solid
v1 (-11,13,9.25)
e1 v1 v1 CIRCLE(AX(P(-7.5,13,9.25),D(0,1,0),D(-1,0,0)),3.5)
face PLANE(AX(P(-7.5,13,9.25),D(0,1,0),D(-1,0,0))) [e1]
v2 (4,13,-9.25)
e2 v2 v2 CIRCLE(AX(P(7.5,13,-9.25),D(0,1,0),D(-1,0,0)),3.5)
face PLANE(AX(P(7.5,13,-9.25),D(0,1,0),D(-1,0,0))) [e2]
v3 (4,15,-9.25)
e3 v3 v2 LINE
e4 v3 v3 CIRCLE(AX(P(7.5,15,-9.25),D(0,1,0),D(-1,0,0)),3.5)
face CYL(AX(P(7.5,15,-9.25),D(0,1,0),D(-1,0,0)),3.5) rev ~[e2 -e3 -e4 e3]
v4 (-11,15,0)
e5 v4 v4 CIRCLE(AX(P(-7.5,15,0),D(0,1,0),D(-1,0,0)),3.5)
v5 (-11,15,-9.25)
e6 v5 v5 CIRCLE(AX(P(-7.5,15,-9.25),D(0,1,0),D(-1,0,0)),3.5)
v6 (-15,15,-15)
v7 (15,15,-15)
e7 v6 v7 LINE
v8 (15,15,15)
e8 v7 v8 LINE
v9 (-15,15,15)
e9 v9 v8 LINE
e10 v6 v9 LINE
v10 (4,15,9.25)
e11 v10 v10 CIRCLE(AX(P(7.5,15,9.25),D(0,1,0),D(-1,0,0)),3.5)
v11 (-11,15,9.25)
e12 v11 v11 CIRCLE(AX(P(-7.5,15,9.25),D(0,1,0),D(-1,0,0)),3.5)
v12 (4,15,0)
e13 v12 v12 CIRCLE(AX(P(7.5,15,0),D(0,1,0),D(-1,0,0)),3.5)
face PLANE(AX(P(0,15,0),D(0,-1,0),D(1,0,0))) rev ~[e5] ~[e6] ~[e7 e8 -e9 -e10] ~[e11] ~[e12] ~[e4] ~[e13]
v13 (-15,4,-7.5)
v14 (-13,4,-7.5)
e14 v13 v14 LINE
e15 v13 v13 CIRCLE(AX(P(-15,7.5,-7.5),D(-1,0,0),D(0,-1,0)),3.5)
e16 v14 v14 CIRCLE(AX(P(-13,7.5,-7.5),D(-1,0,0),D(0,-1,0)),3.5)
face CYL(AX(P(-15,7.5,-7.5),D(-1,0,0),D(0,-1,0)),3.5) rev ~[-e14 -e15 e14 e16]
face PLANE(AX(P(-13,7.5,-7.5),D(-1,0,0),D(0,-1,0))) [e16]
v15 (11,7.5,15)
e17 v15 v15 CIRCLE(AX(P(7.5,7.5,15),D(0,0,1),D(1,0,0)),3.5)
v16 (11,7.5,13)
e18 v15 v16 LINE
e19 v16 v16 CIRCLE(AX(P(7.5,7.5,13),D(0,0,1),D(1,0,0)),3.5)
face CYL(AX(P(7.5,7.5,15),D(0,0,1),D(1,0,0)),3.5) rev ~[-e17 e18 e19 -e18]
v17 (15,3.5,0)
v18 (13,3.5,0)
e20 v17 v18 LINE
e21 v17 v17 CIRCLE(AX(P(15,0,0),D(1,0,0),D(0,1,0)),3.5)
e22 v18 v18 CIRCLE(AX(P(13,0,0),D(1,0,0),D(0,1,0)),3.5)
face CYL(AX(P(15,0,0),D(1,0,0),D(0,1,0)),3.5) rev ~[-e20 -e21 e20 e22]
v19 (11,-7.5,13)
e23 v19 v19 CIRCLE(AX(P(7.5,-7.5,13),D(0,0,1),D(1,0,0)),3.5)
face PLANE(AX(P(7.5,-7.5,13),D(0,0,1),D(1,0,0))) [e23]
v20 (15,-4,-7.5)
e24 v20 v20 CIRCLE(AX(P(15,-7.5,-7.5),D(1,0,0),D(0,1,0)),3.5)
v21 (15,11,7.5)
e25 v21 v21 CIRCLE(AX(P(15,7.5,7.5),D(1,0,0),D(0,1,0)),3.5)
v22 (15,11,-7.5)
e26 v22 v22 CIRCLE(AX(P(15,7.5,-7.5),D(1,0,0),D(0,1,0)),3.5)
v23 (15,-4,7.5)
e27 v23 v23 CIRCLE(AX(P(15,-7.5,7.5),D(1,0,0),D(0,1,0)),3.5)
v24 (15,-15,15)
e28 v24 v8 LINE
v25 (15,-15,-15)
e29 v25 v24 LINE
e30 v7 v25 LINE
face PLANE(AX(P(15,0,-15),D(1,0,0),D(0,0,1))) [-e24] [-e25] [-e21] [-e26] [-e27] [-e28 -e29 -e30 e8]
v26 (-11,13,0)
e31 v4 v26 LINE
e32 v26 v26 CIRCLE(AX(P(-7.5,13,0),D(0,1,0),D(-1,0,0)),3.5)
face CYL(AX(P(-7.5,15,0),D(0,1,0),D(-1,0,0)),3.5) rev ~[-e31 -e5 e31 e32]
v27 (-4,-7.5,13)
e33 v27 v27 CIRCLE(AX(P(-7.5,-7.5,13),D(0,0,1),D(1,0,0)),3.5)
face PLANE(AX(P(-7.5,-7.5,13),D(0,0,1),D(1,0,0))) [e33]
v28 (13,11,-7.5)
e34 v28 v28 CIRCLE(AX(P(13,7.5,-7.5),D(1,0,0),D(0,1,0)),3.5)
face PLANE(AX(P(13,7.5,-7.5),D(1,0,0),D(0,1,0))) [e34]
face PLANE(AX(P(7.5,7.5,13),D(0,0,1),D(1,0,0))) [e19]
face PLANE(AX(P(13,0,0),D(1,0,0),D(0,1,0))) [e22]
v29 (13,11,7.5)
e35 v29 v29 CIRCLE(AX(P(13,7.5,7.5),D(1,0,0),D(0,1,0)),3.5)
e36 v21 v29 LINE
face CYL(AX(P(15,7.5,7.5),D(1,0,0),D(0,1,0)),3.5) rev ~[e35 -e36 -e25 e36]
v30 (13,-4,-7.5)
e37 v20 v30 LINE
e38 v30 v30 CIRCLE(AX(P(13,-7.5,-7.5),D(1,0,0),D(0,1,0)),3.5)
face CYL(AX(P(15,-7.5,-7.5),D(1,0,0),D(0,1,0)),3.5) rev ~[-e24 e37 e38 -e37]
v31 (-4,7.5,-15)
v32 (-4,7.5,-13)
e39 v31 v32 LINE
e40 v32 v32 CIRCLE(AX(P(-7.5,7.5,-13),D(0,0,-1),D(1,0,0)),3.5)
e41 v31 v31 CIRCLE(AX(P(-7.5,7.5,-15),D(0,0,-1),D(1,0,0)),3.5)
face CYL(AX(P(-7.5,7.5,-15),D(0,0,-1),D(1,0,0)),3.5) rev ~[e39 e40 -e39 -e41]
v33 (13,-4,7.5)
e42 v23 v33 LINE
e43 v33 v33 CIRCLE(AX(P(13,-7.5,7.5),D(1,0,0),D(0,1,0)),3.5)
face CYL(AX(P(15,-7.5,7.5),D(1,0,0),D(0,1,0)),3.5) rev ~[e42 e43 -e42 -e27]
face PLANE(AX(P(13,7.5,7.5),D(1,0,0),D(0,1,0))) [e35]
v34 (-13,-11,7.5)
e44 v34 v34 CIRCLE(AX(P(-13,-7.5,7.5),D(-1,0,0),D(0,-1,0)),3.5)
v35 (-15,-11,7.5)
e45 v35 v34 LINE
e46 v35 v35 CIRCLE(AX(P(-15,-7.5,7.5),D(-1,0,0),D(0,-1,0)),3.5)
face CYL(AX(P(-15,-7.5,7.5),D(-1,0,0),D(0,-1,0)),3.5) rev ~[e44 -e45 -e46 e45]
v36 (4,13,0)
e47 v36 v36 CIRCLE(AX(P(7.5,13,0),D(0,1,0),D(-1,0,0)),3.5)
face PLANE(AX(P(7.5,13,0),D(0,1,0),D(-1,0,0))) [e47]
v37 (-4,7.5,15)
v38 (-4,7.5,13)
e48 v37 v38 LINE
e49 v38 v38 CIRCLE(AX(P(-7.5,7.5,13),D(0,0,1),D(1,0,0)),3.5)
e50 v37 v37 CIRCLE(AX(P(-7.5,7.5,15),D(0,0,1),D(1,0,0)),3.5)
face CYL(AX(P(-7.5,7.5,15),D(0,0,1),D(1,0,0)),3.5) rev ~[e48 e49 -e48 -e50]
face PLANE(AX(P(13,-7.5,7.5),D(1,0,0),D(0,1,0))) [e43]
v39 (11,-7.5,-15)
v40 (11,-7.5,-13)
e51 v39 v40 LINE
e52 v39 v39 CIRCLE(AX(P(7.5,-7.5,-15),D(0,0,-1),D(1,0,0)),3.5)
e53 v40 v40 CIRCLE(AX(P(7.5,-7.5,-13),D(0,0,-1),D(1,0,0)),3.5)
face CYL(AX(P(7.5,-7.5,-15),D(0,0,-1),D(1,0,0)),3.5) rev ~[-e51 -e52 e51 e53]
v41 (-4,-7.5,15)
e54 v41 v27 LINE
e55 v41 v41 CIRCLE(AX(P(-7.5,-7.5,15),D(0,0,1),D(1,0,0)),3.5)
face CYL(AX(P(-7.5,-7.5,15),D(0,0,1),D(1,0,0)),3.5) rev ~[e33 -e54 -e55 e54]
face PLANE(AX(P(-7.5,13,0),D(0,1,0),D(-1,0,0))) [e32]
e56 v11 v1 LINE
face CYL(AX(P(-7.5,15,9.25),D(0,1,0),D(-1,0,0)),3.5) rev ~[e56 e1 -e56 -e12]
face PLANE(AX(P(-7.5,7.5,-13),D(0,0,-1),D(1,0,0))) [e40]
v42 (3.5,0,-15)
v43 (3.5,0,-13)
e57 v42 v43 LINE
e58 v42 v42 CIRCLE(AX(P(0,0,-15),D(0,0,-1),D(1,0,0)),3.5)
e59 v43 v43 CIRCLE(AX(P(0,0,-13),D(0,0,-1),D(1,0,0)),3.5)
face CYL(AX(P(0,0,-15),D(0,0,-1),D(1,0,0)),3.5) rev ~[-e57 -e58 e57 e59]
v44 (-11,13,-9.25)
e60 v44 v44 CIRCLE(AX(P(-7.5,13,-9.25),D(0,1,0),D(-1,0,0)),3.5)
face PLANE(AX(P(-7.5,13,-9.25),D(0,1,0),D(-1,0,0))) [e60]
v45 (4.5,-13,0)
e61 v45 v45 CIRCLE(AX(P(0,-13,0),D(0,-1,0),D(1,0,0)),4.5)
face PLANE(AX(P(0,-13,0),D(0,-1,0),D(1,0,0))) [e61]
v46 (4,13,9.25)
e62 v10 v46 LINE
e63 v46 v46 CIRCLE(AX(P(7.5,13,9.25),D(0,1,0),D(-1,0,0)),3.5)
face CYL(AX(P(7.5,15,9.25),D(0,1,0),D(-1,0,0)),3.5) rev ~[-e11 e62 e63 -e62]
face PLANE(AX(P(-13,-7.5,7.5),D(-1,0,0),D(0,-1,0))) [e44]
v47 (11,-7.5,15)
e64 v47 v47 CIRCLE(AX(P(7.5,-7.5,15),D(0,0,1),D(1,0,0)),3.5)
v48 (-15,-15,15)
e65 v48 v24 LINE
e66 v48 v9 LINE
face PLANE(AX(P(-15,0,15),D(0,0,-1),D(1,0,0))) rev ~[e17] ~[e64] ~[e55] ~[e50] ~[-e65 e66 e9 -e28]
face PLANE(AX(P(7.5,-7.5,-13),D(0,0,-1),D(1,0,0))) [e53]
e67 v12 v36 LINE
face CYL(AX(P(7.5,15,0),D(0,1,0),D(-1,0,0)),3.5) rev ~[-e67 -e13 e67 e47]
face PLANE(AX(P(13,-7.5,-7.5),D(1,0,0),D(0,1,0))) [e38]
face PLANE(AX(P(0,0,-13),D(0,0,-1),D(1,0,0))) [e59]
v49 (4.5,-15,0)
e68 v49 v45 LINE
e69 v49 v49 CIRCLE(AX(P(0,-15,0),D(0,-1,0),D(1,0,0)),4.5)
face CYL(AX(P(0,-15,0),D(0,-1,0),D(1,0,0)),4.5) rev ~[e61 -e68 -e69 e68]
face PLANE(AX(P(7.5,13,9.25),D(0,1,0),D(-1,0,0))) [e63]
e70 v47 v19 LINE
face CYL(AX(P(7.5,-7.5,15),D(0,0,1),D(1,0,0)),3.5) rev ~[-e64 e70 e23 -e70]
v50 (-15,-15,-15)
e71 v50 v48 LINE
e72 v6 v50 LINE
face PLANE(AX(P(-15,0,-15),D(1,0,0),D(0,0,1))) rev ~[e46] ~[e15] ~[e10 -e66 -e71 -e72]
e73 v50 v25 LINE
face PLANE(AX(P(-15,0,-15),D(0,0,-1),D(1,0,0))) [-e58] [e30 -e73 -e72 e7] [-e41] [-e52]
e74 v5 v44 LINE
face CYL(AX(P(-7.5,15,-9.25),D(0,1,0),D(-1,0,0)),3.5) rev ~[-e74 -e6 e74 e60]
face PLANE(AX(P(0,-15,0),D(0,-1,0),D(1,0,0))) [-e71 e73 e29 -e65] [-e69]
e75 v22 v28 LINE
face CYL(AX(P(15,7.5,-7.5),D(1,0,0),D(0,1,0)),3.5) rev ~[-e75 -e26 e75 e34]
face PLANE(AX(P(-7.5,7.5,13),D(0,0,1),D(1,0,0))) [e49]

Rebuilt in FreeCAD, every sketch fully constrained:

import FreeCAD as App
import Part
import Sketcher

V = App.Vector


def add_polygon(sketch, points):
    """Adds a closed chain of lines whose ends are joined by coincident constraints."""
    first, n = sketch.GeometryCount, len(points)
    for a, b in zip(points, points[1:] + points[:1]):
        sketch.addGeometry(Part.LineSegment(App.Vector(*a, 0), App.Vector(*b, 0)), False)
    for i in range(n):
        sketch.addConstraint(Sketcher.Constraint("Coincident", first + i, 2, first + (i + 1) % n, 1))

doc = App.newDocument("Part")
params = doc.addObject("Spreadsheet::Sheet", "Params")
for row, (alias, value) in enumerate([
    ("sketch1_width", "30 mm"),
    ("pad1_length", "30 mm"),
    ("sketch2_diameter", "9 mm"),
    ("pocket1_length", "2 mm"),
    ("sketch3_diameter", "7 mm"),
    ("pocket2_length", "2 mm"),
    ("sketch4_diameter", "7 mm"),
    ("pocket3_length", "2 mm"),
    ("sketch5_diameter", "7 mm"),
    ("pocket4_length", "2 mm"),
    ("sketch6_diameter", "7 mm"),
    ("pocket5_length", "2 mm"),
    ("sketch7_diameter", "7 mm"),
    ("pocket6_length", "2 mm"),
], start=1):
    params.set(f"A{row}", alias)
    params.set(f"B{row}", "=" + value)
    params.setAlias(f"B{row}", alias)

body = doc.addObject("PartDesign::Body", "Body")

# Sketch on XZ plane
sketch1 = doc.addObject("Sketcher::SketchObject", "Sketch")
body.addObject(sketch1)
sketch1.AttachmentSupport = (doc.XZ_Plane, [""])
sketch1.MapMode = "FlatFace"
add_polygon(sketch1, [(-15, 15), (-15, -15), (15, -15), (15, 15)])  # lines 0-3
sketch1.addConstraint([
    Sketcher.Constraint("Vertical", 0),
    Sketcher.Constraint("Horizontal", 1),
    Sketcher.Constraint("Vertical", 2),
    Sketcher.Constraint("Horizontal", 3),
    Sketcher.Constraint("Symmetric", 0, 2, 2, 2, -1, 1),
    Sketcher.Constraint("Equal", 3, 0),
    Sketcher.Constraint("DistanceX", 1, 1, 1, 2, 30.0),
])
sketch1.setExpression("Constraints[10]", "Params.sketch1_width")
pad1 = doc.addObject("PartDesign::Pad", "Pad")
body.addObject(pad1)
pad1.Profile = sketch1
pad1.setExpression("Length", "Params.pad1_length")
pad1.Midplane = True

# Sketch on XZ plane
sketch2 = doc.addObject("Sketcher::SketchObject", "Sketch001")
body.addObject(sketch2)
sketch2.AttachmentSupport = (doc.XZ_Plane, [""])
sketch2.MapMode = "FlatFace"
sketch2.AttachmentOffset = App.Placement(V(0, 0, 15), App.Rotation())
sketch2.addGeometry(Part.Circle(V(0, 0, 0), V(0, 0, 1), 4.5), False)
sketch2.addConstraint([
    Sketcher.Constraint("Coincident", 0, 3, -1, 1),
    Sketcher.Constraint("Diameter", 0, 9.0),
])
sketch2.setExpression("Constraints[1]", "Params.sketch2_diameter")
pocket1 = doc.addObject("PartDesign::Pocket", "Pocket")
body.addObject(pocket1)
pocket1.Profile = sketch2
pocket1.setExpression("Length", "Params.pocket1_length")

# Sketch on XZ plane
sketch3 = doc.addObject("Sketcher::SketchObject", "Sketch002")
body.addObject(sketch3)
sketch3.AttachmentSupport = (doc.XZ_Plane, [""])
sketch3.MapMode = "FlatFace"
sketch3.AttachmentOffset = App.Placement(V(0, 0, -15), App.Rotation())
sketch3.addGeometry([
    Part.Circle(V(7.5, 0, 0), V(0, 0, 1), 3.5),  # 0
    Part.Circle(V(7.5, 9.2, 0), V(0, 0, 1), 3.5),  # 1
    Part.Circle(V(7.5, -9.2, 0), V(0, 0, 1), 3.5),  # 2
    Part.Circle(V(-7.5, 0, 0), V(0, 0, 1), 3.5),  # 3
    Part.Circle(V(-7.5, -9.2, 0), V(0, 0, 1), 3.5),  # 4
    Part.Circle(V(-7.5, 9.2, 0), V(0, 0, 1), 3.5),  # 5
], False)
sketch3.addConstraint([
    Sketcher.Constraint("Equal", 0, 1),
    Sketcher.Constraint("Equal", 1, 2),
    Sketcher.Constraint("Equal", 2, 3),
    Sketcher.Constraint("Equal", 3, 4),
    Sketcher.Constraint("Equal", 4, 5),
    Sketcher.Constraint("Symmetric", 0, 3, 3, 3, -1, 1),
    Sketcher.Constraint("Symmetric", 1, 3, 4, 3, -1, 1),
    Sketcher.Constraint("Symmetric", 2, 3, 5, 3, -1, 1),
    Sketcher.Constraint("Symmetric", 2, 3, 4, 3, -2),
    Sketcher.Constraint("PointOnObject", 0, 3, -1),
    Sketcher.Constraint("Vertical", 0, 3, 1, 3),
    Sketcher.Constraint("Diameter", 0, 7.0),
    Sketcher.Constraint("DistanceX", 3, 3, 0, 3, 15.0),
    Sketcher.Constraint("DistanceY", 2, 3, 1, 3, 18.5),
])
sketch3.setExpression("Constraints[11]", "Params.sketch3_diameter")
pocket2 = doc.addObject("PartDesign::Pocket", "Pocket001")
body.addObject(pocket2)
pocket2.Profile = sketch3
pocket2.setExpression("Length", "Params.pocket2_length")
pocket2.Reversed = True

# Sketch on XY plane
sketch4 = doc.addObject("Sketcher::SketchObject", "Sketch003")
body.addObject(sketch4)
sketch4.AttachmentSupport = (doc.XY_Plane, [""])
sketch4.MapMode = "FlatFace"
sketch4.AttachmentOffset = App.Placement(V(0, 0, 15), App.Rotation())
sketch4.addGeometry([
    Part.Circle(V(-7.5, 7.5, 0), V(0, 0, 1), 3.5),
    Part.Circle(V(7.5, 7.5, 0), V(0, 0, 1), 3.5),
    Part.Circle(V(7.5, -7.5, 0), V(0, 0, 1), 3.5),
    Part.Circle(V(-7.5, -7.5, 0), V(0, 0, 1), 3.5),
], False)
sketch4.addConstraint([
    Sketcher.Constraint("Equal", 0, 1),
    Sketcher.Constraint("Equal", 1, 2),
    Sketcher.Constraint("Equal", 2, 3),
    Sketcher.Constraint("Symmetric", 0, 3, 2, 3, -1, 1),
    Sketcher.Constraint("Symmetric", 1, 3, 3, 3, -1, 1),
    Sketcher.Constraint("Symmetric", 0, 3, 1, 3, -2),
    Sketcher.Constraint("Diameter", 0, 7.0),
    Sketcher.Constraint("DistanceX", 0, 3, 1, 3, 15.0),
    Sketcher.Constraint("DistanceY", 2, 3, 1, 3, 15.0),
])
sketch4.setExpression("Constraints[6]", "Params.sketch4_diameter")
pocket3 = doc.addObject("PartDesign::Pocket", "Pocket002")
body.addObject(pocket3)
pocket3.Profile = sketch4
pocket3.setExpression("Length", "Params.pocket3_length")

# Sketch on XY plane
sketch5 = doc.addObject("Sketcher::SketchObject", "Sketch004")
body.addObject(sketch5)
sketch5.AttachmentSupport = (doc.XY_Plane, [""])
sketch5.MapMode = "FlatFace"
sketch5.AttachmentOffset = App.Placement(V(0, 0, -15), App.Rotation())
sketch5.addGeometry([
    Part.Circle(V(0, 0, 0), V(0, 0, 1), 3.5),
    Part.Circle(V(-7.5, 7.5, 0), V(0, 0, 1), 3.5),
    Part.Circle(V(7.5, -7.5, 0), V(0, 0, 1), 3.5),
], False)
sketch5.addConstraint([
    Sketcher.Constraint("Coincident", 0, 3, -1, 1),
    Sketcher.Constraint("Equal", 0, 1),
    Sketcher.Constraint("Equal", 1, 2),
    Sketcher.Constraint("Symmetric", 1, 3, 2, 3, -1, 1),
    Sketcher.Constraint("Diameter", 0, 7.0),
    Sketcher.Constraint("DistanceX", 1, 3, 2, 3, 15.0),
    Sketcher.Constraint("DistanceY", 2, 3, 1, 3, 15.0),
])
sketch5.setExpression("Constraints[4]", "Params.sketch5_diameter")
pocket4 = doc.addObject("PartDesign::Pocket", "Pocket003")
body.addObject(pocket4)
pocket4.Profile = sketch5
pocket4.setExpression("Length", "Params.pocket4_length")
pocket4.Reversed = True

# Sketch on YZ plane
sketch6 = doc.addObject("Sketcher::SketchObject", "Sketch005")
body.addObject(sketch6)
sketch6.AttachmentSupport = (doc.YZ_Plane, [""])
sketch6.MapMode = "FlatFace"
sketch6.AttachmentOffset = App.Placement(V(0, 0, 15), App.Rotation())
sketch6.addGeometry([
    Part.Circle(V(-7.5, 7.5, 0), V(0, 0, 1), 3.5),  # 0
    Part.Circle(V(7.5, 7.5, 0), V(0, 0, 1), 3.5),  # 1
    Part.Circle(V(7.5, -7.5, 0), V(0, 0, 1), 3.5),  # 2
    Part.Circle(V(-7.5, -7.5, 0), V(0, 0, 1), 3.5),  # 3
    Part.Circle(V(0, 0, 0), V(0, 0, 1), 3.5),  # 4
], False)
sketch6.addConstraint([
    Sketcher.Constraint("Coincident", 4, 3, -1, 1),
    Sketcher.Constraint("Equal", 0, 1),
    Sketcher.Constraint("Equal", 1, 2),
    Sketcher.Constraint("Equal", 2, 3),
    Sketcher.Constraint("Equal", 3, 4),
    Sketcher.Constraint("Symmetric", 0, 3, 2, 3, -1, 1),
    Sketcher.Constraint("Symmetric", 1, 3, 3, 3, -1, 1),
    Sketcher.Constraint("Symmetric", 0, 3, 1, 3, -2),
    Sketcher.Constraint("Diameter", 0, 7.0),
    Sketcher.Constraint("DistanceX", 0, 3, 1, 3, 15.0),
    Sketcher.Constraint("DistanceY", 2, 3, 1, 3, 15.0),
])
sketch6.setExpression("Constraints[8]", "Params.sketch6_diameter")
pocket5 = doc.addObject("PartDesign::Pocket", "Pocket004")
body.addObject(pocket5)
pocket5.Profile = sketch6
pocket5.setExpression("Length", "Params.pocket5_length")

# Sketch on YZ plane
sketch7 = doc.addObject("Sketcher::SketchObject", "Sketch006")
body.addObject(sketch7)
sketch7.AttachmentSupport = (doc.YZ_Plane, [""])
sketch7.MapMode = "FlatFace"
sketch7.AttachmentOffset = App.Placement(V(0, 0, -15), App.Rotation())
sketch7.addGeometry([
    Part.Circle(V(7.5, -7.5, 0), V(0, 0, 1), 3.5),
    Part.Circle(V(-7.5, 7.5, 0), V(0, 0, 1), 3.5),
], False)
sketch7.addConstraint([
    Sketcher.Constraint("Equal", 0, 1),
    Sketcher.Constraint("Symmetric", 0, 3, 1, 3, -1, 1),
    Sketcher.Constraint("Diameter", 0, 7.0),
    Sketcher.Constraint("DistanceX", 1, 3, 0, 3, 15.0),
    Sketcher.Constraint("DistanceY", 0, 3, 1, 3, 15.0),
])
sketch7.setExpression("Constraints[2]", "Params.sketch7_diameter")
pocket6 = doc.addObject("PartDesign::Pocket", "Pocket005")
body.addObject(pocket6)
pocket6.Profile = sketch7
pocket6.setExpression("Length", "Params.pocket6_length")
pocket6.Reversed = True

doc.recompute()
